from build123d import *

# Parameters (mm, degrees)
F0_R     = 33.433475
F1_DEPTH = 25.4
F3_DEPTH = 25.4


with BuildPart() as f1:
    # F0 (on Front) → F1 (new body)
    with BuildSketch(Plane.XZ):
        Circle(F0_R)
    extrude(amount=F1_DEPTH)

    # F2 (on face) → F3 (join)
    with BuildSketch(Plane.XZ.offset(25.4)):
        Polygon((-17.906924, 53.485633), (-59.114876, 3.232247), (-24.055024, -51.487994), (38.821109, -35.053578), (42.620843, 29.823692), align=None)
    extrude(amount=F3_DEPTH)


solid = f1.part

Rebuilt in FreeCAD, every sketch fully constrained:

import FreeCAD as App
import Part
import Sketcher

V = App.Vector
Q = App.Units.Quantity


def add_polygon(sketch, points):
    """Adds a closed chain of lines whose ends are joined by coincident constraints."""
    first, n = sketch.GeometryCount, len(points)
    for a, b in zip(points, points[1:] + points[:1]):
        sketch.addGeometry(Part.LineSegment(App.Vector(*a, 0), App.Vector(*b, 0)), False)
    for i in range(n):
        sketch.addConstraint(Sketcher.Constraint("Coincident", first + i, 2, first + (i + 1) % n, 1))

doc = App.newDocument("Part")
body = doc.addObject("PartDesign::Body", "Body")

sketch1 = doc.addObject("Sketcher::SketchObject", "Sketch")
body.addObject(sketch1)
sketch1.AttachmentSupport = (doc.XZ_Plane, [""])
sketch1.MapMode = "FlatFace"
sketch1.addGeometry(Part.Circle(V(0, 0, 0), V(0, 0, 1), 33.433475), False)
sketch1.addConstraint(Sketcher.Constraint("Coincident", 0, 3, -1, 1))
sketch1.addConstraint(Sketcher.Constraint("Diameter", 0, 66.86695))
pad1 = doc.addObject("PartDesign::Pad", "Pad")
body.addObject(pad1)
pad1.Profile = sketch1
pad1.Length = Q("1 in")

sketch2 = doc.addObject("Sketcher::SketchObject", "Sketch001")
body.addObject(sketch2)
sketch2.AttachmentSupport = (doc.XZ_Plane, [""])
sketch2.MapMode = "FlatFace"
sketch2.AttachmentOffset = App.Placement(V(0, 0, 1 * 25.4), App.Rotation())
add_polygon(sketch2, [(-17.906924, 53.485633), (-59.114876, 3.232247), (-24.055024, -51.487994), (38.821109, -35.053578), (42.620843, 29.823692)])
sketch2.addConstraint(Sketcher.Constraint("Equal", 0, 1))
sketch2.addConstraint(Sketcher.Constraint("Equal", 1, 2))
sketch2.addConstraint(Sketcher.Constraint("Equal", 2, 3))
sketch2.addConstraint(Sketcher.Constraint("Equal", 3, 4))
sketch2.addConstraint(Sketcher.Constraint("DistanceX", 1, 2, 4, 2, 6.1481))
sketch2.addConstraint(Sketcher.Constraint("DistanceX", -1, 1, 2, 2, 38.821109))
sketch2.addConstraint(Sketcher.Constraint("DistanceY", 2, 2, -1, 1, 35.053578))
sketch2.addConstraint(Sketcher.Constraint("DistanceY", 1, 2, 0, 2, 54.720241))
sketch2.addConstraint(Sketcher.Constraint("DistanceY", 2, 2, 3, 2, 64.87727))
sketch2.addConstraint(Sketcher.Constraint("DistanceX", 0, 2, 3, 2, 101.735719))
pad2 = doc.addObject("PartDesign::Pad", "Pad001")
body.addObject(pad2)
pad2.Profile = sketch2
pad2.Length = Q("1 in")

doc.recompute()
